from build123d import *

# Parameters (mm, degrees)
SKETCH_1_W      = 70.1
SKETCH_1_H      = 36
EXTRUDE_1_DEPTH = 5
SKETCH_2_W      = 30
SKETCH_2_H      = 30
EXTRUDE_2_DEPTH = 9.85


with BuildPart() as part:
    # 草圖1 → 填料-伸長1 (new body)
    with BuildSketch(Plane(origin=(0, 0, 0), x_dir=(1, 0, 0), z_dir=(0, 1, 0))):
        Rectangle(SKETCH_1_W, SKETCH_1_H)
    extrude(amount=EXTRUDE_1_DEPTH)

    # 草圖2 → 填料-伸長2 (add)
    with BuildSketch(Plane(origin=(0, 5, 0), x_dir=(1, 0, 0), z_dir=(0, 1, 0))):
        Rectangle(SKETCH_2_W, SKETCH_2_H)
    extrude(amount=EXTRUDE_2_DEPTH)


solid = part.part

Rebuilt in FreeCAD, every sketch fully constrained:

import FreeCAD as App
import Part
import Sketcher

doc = App.newDocument("Part")
body = doc.addObject("PartDesign::Body", "Body")

sketch1 = doc.addObject("Sketcher::SketchObject", "Sketch")
body.addObject(sketch1)
sketch1.AttachmentSupport = (doc.XZ_Plane, [""])
sketch1.MapMode = "FlatFace"
sketch1.addGeometry([
    Part.LineSegment(App.Vector(-35, -18, 0), App.Vector(-35, 18, 0)),
    Part.LineSegment(App.Vector(-35, 18, 0), App.Vector(35, 18, 0)),
    Part.LineSegment(App.Vector(35, 18, 0), App.Vector(35, -18, 0)),
    Part.LineSegment(App.Vector(35, -18, 0), App.Vector(-35, -18, 0)),
], False)
sketch1.addConstraint([
    Sketcher.Constraint("Coincident", 0, 2, 1, 1),
    Sketcher.Constraint("Coincident", 1, 2, 2, 1),
    Sketcher.Constraint("Coincident", 2, 2, 3, 1),
    Sketcher.Constraint("Coincident", 3, 2, 0, 1),
    Sketcher.Constraint("Vertical", 0),
    Sketcher.Constraint("Horizontal", 1),
    Sketcher.Constraint("Vertical", 2),
    Sketcher.Constraint("Horizontal", 3),
    Sketcher.Constraint("Symmetric", 0, 2, 2, 2, -1, 1),
    Sketcher.Constraint("DistanceY", 0, 1, 0, 2, 36.0),
    Sketcher.Constraint("DistanceX", 1, 1, 1, 2, 70.1),
])
pad1 = doc.addObject("PartDesign::Pad", "Pad")
body.addObject(pad1)
pad1.Profile = sketch1
pad1.Length = 5
pad1.Reversed = True

sketch2 = doc.addObject("Sketcher::SketchObject", "Sketch001")
body.addObject(sketch2)
sketch2.AttachmentSupport = (doc.XZ_Plane, [""])
sketch2.MapMode = "FlatFace"
sketch2.AttachmentOffset = App.Placement(App.Vector(0, 0, -5), App.Rotation())
sketch2.addGeometry([
    Part.LineSegment(App.Vector(-15, -15, 0), App.Vector(-15, 15, 0)),
    Part.LineSegment(App.Vector(-15, 15, 0), App.Vector(15, 15, 0)),
    Part.LineSegment(App.Vector(15, 15, 0), App.Vector(15, -15, 0)),
    Part.LineSegment(App.Vector(15, -15, 0), App.Vector(-15, -15, 0)),
], False)
sketch2.addConstraint([
    Sketcher.Constraint("Coincident", 0, 2, 1, 1),
    Sketcher.Constraint("Coincident", 1, 2, 2, 1),
    Sketcher.Constraint("Coincident", 2, 2, 3, 1),
    Sketcher.Constraint("Coincident", 3, 2, 0, 1),
    Sketcher.Constraint("Vertical", 0),
    Sketcher.Constraint("Horizontal", 1),
    Sketcher.Constraint("Vertical", 2),
    Sketcher.Constraint("Horizontal", 3),
    Sketcher.Constraint("Symmetric", 0, 2, 2, 2, -1, 1),
    Sketcher.Constraint("Equal", 3, 0),
    Sketcher.Constraint("DistanceX", 1, 1, 1, 2, 30.0),
])
pad2 = doc.addObject("PartDesign::Pad", "Pad001")
body.addObject(pad2)
pad2.Profile = sketch2
pad2.Length = 9.85
pad2.Reversed = True

doc.recompute()
